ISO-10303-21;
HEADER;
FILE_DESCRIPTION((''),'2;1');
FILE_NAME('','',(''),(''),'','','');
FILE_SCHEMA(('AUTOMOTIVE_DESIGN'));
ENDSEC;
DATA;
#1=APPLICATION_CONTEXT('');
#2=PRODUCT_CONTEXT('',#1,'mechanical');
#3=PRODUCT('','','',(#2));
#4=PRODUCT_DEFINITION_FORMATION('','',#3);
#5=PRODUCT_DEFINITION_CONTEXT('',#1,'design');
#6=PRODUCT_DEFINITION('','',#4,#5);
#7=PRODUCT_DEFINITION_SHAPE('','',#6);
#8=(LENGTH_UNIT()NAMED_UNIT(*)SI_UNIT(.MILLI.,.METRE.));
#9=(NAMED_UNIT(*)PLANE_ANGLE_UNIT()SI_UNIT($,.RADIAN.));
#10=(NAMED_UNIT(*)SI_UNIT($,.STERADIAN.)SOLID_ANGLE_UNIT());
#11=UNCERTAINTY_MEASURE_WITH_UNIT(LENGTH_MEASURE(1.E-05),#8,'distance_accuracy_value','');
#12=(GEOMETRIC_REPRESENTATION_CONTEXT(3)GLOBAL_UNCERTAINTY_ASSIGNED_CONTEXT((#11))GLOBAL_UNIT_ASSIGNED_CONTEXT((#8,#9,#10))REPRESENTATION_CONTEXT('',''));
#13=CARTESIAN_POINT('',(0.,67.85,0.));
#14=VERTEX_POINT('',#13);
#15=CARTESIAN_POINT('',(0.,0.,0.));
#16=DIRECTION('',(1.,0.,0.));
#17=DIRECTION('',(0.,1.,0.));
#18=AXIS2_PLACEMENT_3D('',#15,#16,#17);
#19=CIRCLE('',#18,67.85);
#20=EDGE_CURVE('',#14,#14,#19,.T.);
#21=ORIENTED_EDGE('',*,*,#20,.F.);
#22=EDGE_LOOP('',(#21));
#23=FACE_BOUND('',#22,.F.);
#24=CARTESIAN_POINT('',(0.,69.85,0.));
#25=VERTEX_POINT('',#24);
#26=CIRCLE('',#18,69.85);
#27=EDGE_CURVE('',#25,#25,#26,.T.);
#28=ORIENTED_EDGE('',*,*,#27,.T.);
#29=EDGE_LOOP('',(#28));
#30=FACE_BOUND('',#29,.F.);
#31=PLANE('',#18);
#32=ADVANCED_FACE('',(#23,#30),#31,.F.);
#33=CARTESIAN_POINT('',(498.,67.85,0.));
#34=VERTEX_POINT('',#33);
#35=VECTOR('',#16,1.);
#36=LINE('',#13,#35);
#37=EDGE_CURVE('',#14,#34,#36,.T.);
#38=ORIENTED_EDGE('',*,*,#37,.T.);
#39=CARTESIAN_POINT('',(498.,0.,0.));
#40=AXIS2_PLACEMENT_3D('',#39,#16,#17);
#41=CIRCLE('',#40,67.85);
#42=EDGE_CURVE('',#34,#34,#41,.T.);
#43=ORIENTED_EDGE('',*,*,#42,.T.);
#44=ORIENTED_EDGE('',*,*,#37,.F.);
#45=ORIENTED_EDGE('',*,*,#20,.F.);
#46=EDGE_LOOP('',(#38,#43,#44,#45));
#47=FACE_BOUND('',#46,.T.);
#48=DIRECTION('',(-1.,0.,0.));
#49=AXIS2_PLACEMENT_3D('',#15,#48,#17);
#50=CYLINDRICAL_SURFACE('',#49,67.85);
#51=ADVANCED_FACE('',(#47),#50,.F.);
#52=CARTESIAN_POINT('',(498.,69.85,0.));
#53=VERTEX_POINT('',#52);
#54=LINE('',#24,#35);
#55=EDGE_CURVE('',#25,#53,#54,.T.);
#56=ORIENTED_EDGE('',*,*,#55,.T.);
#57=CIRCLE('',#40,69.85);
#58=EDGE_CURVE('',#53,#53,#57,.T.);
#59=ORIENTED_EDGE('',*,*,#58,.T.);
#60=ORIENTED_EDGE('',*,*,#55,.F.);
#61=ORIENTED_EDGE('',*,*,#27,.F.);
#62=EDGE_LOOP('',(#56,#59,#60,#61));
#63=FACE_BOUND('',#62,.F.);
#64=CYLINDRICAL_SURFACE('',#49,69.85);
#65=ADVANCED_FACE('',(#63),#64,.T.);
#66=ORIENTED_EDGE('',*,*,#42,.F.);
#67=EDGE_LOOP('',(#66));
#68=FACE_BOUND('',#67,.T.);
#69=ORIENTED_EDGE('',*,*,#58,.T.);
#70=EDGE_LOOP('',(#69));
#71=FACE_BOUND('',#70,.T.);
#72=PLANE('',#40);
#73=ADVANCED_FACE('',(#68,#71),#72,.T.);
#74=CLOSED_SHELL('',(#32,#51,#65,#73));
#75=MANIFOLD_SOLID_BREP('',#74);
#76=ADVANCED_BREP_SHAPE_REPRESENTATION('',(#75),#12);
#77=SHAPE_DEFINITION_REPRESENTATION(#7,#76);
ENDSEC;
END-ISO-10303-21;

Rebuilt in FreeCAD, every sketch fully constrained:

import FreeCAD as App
import Part
import Sketcher
from FreeCAD import Vector

doc = App.newDocument("Part")
params = doc.addObject("Spreadsheet::Sheet", "Params")
for row, (alias, value) in enumerate([
    ("sketch1_diameter", "139.7 mm"),
    ("sketch1_diameter2", "135.7 mm"),
    ("pad1_length", "498 mm"),
], start=1):
    params.set(f"A{row}", alias)
    params.set(f"B{row}", "=" + value)
    params.setAlias(f"B{row}", alias)

body = doc.addObject("PartDesign::Body", "Body")

# Sketch on YZ plane
sketch1 = body.newObject("Sketcher::SketchObject", "Sketch")
sketch1.AttachmentSupport = (doc.getObject("YZ_Plane"), [""])
sketch1.MapMode = "FlatFace"
sketch1.addGeometry([
    Part.Circle(Vector(0, 0, 0), Vector(0, 0, 1), 70),
    Part.Circle(Vector(0, 0, 0), Vector(0, 0, 1), 68),
], False)
sketch1.addConstraint([
    Sketcher.Constraint("Coincident", 0, 3, -1, 1),
    Sketcher.Constraint("Coincident", 1, 3, -1, 1),
    Sketcher.Constraint("Diameter", 0, 139.7),
    Sketcher.Constraint("Diameter", 1, 135.7),
])
sketch1.setExpression("Constraints[2]", "Params.sketch1_diameter")
sketch1.setExpression("Constraints[3]", "Params.sketch1_diameter2")
pad1 = body.newObject("PartDesign::Pad", "Pad")
pad1.Profile = sketch1
pad1.setExpression("Length", "Params.pad1_length")

doc.recompute()
